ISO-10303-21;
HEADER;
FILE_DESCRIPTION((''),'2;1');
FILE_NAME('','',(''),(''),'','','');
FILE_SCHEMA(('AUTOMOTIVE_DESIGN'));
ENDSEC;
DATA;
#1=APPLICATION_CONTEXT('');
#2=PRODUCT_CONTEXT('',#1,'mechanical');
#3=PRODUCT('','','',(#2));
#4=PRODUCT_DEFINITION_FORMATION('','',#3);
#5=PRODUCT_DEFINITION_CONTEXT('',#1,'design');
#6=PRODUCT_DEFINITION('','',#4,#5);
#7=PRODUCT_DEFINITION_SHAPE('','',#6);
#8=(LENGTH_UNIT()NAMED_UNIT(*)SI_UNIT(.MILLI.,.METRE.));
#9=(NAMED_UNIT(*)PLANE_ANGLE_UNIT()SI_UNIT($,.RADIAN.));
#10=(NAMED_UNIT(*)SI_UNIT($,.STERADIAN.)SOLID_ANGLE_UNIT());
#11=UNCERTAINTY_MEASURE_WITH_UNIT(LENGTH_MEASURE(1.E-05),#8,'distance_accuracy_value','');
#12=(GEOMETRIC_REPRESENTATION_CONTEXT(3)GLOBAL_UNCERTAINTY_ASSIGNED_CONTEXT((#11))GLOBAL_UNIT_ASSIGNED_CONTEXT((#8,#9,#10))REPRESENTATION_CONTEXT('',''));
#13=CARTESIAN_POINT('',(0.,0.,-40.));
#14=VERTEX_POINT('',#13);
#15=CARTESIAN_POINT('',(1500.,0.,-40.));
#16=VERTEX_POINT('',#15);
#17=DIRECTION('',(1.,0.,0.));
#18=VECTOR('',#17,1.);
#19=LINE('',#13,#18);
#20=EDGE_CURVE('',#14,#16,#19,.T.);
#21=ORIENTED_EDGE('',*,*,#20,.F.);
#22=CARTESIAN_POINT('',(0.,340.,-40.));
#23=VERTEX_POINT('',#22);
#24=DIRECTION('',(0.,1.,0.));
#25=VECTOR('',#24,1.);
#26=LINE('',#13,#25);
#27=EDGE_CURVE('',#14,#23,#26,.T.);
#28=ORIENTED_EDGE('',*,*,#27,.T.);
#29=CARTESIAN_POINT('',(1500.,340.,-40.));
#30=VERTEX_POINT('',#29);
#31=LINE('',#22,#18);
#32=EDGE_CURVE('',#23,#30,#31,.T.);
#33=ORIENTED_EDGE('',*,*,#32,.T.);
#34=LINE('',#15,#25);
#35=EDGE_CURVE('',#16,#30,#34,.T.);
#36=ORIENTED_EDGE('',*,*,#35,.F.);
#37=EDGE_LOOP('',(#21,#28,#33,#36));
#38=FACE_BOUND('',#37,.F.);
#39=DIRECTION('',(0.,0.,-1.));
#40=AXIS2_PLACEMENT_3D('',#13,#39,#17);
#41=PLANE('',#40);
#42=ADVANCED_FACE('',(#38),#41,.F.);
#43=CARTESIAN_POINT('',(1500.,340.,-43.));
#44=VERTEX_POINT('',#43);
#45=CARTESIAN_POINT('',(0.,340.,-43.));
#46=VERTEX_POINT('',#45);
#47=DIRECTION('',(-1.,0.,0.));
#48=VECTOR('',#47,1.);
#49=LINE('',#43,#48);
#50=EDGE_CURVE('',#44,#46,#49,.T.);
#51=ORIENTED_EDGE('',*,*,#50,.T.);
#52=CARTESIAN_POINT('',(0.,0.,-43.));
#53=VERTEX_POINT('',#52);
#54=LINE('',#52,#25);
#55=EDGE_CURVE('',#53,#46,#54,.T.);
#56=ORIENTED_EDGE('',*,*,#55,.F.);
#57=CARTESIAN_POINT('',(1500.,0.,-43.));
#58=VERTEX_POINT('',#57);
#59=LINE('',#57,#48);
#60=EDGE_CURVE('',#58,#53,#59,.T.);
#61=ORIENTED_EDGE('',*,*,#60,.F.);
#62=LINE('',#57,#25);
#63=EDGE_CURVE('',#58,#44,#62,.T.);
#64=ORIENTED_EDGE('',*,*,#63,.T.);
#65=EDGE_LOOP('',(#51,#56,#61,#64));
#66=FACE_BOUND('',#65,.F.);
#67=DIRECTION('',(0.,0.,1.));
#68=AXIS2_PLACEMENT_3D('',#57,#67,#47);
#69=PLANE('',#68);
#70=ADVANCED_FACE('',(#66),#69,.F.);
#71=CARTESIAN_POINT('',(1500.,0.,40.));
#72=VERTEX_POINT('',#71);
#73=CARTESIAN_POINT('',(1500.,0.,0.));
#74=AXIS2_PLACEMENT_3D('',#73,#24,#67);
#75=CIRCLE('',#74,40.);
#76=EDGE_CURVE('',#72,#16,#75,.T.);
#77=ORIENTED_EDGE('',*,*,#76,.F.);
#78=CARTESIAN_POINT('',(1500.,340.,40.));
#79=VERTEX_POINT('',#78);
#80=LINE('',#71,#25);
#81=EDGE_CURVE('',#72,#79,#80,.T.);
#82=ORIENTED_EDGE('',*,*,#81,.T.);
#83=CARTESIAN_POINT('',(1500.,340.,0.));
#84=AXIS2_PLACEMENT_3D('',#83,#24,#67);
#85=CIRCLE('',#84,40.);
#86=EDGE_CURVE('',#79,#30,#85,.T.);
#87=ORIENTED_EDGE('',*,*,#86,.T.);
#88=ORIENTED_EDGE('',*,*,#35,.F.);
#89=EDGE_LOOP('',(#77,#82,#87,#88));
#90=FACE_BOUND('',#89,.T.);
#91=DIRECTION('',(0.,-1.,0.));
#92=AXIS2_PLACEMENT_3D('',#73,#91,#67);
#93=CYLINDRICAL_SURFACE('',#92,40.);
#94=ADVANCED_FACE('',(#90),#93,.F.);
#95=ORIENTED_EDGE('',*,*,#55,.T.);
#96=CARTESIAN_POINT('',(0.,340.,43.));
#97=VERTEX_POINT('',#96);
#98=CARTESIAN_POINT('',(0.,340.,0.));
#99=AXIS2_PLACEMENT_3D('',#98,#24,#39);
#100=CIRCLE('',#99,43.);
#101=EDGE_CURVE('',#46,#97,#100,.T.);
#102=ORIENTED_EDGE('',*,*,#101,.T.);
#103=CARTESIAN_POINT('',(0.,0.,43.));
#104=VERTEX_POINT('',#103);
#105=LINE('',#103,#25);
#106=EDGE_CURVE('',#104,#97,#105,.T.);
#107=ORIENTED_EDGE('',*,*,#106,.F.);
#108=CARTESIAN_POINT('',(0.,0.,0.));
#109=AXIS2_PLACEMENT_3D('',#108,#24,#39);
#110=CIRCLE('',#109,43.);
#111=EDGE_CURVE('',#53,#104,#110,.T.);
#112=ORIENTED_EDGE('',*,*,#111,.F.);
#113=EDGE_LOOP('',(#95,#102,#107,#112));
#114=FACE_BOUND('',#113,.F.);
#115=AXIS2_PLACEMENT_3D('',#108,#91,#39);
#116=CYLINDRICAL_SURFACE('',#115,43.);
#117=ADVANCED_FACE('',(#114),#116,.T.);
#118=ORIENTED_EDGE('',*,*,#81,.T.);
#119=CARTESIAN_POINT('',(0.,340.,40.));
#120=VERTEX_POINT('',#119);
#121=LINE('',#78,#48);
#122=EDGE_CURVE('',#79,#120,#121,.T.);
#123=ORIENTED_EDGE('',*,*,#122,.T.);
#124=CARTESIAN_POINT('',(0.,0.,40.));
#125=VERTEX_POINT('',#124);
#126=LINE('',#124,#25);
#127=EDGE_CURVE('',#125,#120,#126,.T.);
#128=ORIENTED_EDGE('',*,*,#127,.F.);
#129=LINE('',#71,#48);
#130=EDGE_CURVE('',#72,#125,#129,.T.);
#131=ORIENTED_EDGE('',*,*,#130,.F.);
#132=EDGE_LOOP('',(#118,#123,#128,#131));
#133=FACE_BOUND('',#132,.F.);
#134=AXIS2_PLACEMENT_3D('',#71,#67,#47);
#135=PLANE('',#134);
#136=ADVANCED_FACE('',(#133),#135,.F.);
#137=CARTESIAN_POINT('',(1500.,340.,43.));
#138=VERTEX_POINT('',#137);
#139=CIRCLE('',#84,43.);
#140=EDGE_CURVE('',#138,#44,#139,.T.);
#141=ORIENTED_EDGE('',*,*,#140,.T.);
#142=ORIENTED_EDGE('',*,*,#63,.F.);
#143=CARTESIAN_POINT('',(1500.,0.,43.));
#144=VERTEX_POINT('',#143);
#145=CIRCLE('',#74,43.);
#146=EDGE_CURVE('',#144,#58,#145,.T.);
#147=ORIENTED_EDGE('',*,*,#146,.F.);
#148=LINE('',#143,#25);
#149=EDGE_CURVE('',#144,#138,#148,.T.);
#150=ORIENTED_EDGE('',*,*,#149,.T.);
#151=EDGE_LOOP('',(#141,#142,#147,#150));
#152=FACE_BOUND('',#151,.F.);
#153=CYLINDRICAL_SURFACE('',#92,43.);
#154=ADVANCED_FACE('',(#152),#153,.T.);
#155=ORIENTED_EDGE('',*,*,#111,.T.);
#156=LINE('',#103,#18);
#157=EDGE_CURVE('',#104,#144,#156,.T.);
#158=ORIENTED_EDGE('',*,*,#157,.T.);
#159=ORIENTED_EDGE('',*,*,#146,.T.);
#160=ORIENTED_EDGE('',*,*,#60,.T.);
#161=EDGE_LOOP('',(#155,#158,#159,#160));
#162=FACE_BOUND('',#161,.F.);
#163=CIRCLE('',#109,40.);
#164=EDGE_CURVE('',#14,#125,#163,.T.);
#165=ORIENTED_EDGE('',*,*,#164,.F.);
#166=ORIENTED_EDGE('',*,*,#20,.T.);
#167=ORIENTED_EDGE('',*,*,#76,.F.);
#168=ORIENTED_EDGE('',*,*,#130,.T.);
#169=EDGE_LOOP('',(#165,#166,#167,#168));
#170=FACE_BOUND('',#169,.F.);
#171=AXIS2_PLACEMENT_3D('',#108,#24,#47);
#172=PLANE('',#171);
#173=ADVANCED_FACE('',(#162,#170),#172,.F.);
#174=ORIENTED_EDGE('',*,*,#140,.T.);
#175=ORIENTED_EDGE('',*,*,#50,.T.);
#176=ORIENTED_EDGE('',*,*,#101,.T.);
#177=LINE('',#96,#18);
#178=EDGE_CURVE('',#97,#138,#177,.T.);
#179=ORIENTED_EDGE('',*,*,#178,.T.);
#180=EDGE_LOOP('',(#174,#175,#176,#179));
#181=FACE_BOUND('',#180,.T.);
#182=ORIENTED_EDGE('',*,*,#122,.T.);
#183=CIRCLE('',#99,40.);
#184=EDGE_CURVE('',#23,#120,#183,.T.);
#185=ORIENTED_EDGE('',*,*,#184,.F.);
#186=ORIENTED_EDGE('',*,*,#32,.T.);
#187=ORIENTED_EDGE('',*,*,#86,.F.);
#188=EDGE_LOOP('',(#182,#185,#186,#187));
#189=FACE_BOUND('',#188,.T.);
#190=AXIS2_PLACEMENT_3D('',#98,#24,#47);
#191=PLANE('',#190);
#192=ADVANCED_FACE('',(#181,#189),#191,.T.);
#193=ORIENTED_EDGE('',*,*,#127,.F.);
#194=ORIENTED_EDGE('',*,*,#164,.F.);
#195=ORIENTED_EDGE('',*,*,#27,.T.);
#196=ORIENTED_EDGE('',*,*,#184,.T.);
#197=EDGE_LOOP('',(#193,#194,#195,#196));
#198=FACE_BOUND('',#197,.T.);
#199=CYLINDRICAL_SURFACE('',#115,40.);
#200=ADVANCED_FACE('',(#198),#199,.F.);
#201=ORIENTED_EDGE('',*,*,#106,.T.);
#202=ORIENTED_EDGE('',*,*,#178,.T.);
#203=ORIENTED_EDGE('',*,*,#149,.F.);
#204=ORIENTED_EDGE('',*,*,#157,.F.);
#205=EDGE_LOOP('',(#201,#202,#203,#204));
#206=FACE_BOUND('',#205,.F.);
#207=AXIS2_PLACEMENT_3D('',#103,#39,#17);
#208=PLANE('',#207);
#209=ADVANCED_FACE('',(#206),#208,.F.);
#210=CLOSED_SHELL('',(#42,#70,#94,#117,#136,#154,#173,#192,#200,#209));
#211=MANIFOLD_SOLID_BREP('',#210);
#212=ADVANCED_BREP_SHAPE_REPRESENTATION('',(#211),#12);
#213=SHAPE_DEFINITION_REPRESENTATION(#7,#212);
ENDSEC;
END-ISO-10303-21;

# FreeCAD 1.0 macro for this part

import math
import FreeCAD as App
import Part
import Sketcher

V = App.Vector

doc = App.newDocument("Part")
body = doc.addObject("PartDesign::Body", "Body")

# Sketch on XZ plane
sketch1 = body.newObject("Sketcher::SketchObject", "Sketch")
sketch1.AttachmentSupport = (doc.getObject("XZ_Plane"), [""])
sketch1.MapMode = "FlatFace"
sketch1.addGeometry([
    Part.LineSegment(V(1500, -43, 0), V(0, -43, 0)),  # 0
    Part.ArcOfCircle(Part.Circle(V(0, 0, 0), V(0, 0, 1), 43), math.radians(90), math.radians(270)),  # 1
    Part.LineSegment(V(0, 43, 0), V(1500, 43, 0)),  # 2
    Part.ArcOfCircle(Part.Circle(V(1500, 0, 0), V(0, 0, 1), 43), math.radians(-90), math.radians(90)),  # 3
    Part.ArcOfCircle(Part.Circle(V(0, 0, 0), V(0, 0, 1), 40), math.radians(90), math.radians(270)),  # 4
    Part.LineSegment(V(0, -40, 0), V(1500, -40, 0)),  # 5
    Part.ArcOfCircle(Part.Circle(V(1500, 0, 0), V(0, 0, 1), 40), math.radians(-90), math.radians(90)),  # 6
    Part.LineSegment(V(1500, 40, 0), V(0, 40, 0)),  # 7
], False)
sketch1.addConstraint([
    Sketcher.Constraint("Tangent", 0, 2, 1, 2),
    Sketcher.Constraint("Tangent", 1, 1, 2, 1),
    Sketcher.Constraint("Tangent", 2, 2, 3, 2),
    Sketcher.Constraint("Tangent", 3, 1, 0, 1),
    Sketcher.Constraint("Tangent", 4, 2, 5, 1),
    Sketcher.Constraint("Tangent", 5, 2, 6, 1),
    Sketcher.Constraint("Tangent", 6, 2, 7, 1),
    Sketcher.Constraint("Tangent", 7, 2, 4, 1),
    Sketcher.Constraint("Horizontal", 0),
    Sketcher.Constraint("Horizontal", 2),
    Sketcher.Constraint("Horizontal", 5),
    Sketcher.Constraint("Horizontal", 7),
    Sketcher.Constraint("Coincident", 1, 3, -1, 1),
    Sketcher.Constraint("Coincident", 4, 3, -1, 1),
    Sketcher.Constraint("Vertical", 6, 3, 2, 2),
    Sketcher.Constraint("Radius", 1, 43.0),
    Sketcher.Constraint("Radius", 4, 40.0),
    Sketcher.Constraint("DistanceX", 0, 2, 0, 1, 1500.0),
])
pad1 = body.newObject("PartDesign::Pad", "Pad")
pad1.Profile = sketch1
pad1.Length = 340
pad1.Reversed = True

doc.recompute()
